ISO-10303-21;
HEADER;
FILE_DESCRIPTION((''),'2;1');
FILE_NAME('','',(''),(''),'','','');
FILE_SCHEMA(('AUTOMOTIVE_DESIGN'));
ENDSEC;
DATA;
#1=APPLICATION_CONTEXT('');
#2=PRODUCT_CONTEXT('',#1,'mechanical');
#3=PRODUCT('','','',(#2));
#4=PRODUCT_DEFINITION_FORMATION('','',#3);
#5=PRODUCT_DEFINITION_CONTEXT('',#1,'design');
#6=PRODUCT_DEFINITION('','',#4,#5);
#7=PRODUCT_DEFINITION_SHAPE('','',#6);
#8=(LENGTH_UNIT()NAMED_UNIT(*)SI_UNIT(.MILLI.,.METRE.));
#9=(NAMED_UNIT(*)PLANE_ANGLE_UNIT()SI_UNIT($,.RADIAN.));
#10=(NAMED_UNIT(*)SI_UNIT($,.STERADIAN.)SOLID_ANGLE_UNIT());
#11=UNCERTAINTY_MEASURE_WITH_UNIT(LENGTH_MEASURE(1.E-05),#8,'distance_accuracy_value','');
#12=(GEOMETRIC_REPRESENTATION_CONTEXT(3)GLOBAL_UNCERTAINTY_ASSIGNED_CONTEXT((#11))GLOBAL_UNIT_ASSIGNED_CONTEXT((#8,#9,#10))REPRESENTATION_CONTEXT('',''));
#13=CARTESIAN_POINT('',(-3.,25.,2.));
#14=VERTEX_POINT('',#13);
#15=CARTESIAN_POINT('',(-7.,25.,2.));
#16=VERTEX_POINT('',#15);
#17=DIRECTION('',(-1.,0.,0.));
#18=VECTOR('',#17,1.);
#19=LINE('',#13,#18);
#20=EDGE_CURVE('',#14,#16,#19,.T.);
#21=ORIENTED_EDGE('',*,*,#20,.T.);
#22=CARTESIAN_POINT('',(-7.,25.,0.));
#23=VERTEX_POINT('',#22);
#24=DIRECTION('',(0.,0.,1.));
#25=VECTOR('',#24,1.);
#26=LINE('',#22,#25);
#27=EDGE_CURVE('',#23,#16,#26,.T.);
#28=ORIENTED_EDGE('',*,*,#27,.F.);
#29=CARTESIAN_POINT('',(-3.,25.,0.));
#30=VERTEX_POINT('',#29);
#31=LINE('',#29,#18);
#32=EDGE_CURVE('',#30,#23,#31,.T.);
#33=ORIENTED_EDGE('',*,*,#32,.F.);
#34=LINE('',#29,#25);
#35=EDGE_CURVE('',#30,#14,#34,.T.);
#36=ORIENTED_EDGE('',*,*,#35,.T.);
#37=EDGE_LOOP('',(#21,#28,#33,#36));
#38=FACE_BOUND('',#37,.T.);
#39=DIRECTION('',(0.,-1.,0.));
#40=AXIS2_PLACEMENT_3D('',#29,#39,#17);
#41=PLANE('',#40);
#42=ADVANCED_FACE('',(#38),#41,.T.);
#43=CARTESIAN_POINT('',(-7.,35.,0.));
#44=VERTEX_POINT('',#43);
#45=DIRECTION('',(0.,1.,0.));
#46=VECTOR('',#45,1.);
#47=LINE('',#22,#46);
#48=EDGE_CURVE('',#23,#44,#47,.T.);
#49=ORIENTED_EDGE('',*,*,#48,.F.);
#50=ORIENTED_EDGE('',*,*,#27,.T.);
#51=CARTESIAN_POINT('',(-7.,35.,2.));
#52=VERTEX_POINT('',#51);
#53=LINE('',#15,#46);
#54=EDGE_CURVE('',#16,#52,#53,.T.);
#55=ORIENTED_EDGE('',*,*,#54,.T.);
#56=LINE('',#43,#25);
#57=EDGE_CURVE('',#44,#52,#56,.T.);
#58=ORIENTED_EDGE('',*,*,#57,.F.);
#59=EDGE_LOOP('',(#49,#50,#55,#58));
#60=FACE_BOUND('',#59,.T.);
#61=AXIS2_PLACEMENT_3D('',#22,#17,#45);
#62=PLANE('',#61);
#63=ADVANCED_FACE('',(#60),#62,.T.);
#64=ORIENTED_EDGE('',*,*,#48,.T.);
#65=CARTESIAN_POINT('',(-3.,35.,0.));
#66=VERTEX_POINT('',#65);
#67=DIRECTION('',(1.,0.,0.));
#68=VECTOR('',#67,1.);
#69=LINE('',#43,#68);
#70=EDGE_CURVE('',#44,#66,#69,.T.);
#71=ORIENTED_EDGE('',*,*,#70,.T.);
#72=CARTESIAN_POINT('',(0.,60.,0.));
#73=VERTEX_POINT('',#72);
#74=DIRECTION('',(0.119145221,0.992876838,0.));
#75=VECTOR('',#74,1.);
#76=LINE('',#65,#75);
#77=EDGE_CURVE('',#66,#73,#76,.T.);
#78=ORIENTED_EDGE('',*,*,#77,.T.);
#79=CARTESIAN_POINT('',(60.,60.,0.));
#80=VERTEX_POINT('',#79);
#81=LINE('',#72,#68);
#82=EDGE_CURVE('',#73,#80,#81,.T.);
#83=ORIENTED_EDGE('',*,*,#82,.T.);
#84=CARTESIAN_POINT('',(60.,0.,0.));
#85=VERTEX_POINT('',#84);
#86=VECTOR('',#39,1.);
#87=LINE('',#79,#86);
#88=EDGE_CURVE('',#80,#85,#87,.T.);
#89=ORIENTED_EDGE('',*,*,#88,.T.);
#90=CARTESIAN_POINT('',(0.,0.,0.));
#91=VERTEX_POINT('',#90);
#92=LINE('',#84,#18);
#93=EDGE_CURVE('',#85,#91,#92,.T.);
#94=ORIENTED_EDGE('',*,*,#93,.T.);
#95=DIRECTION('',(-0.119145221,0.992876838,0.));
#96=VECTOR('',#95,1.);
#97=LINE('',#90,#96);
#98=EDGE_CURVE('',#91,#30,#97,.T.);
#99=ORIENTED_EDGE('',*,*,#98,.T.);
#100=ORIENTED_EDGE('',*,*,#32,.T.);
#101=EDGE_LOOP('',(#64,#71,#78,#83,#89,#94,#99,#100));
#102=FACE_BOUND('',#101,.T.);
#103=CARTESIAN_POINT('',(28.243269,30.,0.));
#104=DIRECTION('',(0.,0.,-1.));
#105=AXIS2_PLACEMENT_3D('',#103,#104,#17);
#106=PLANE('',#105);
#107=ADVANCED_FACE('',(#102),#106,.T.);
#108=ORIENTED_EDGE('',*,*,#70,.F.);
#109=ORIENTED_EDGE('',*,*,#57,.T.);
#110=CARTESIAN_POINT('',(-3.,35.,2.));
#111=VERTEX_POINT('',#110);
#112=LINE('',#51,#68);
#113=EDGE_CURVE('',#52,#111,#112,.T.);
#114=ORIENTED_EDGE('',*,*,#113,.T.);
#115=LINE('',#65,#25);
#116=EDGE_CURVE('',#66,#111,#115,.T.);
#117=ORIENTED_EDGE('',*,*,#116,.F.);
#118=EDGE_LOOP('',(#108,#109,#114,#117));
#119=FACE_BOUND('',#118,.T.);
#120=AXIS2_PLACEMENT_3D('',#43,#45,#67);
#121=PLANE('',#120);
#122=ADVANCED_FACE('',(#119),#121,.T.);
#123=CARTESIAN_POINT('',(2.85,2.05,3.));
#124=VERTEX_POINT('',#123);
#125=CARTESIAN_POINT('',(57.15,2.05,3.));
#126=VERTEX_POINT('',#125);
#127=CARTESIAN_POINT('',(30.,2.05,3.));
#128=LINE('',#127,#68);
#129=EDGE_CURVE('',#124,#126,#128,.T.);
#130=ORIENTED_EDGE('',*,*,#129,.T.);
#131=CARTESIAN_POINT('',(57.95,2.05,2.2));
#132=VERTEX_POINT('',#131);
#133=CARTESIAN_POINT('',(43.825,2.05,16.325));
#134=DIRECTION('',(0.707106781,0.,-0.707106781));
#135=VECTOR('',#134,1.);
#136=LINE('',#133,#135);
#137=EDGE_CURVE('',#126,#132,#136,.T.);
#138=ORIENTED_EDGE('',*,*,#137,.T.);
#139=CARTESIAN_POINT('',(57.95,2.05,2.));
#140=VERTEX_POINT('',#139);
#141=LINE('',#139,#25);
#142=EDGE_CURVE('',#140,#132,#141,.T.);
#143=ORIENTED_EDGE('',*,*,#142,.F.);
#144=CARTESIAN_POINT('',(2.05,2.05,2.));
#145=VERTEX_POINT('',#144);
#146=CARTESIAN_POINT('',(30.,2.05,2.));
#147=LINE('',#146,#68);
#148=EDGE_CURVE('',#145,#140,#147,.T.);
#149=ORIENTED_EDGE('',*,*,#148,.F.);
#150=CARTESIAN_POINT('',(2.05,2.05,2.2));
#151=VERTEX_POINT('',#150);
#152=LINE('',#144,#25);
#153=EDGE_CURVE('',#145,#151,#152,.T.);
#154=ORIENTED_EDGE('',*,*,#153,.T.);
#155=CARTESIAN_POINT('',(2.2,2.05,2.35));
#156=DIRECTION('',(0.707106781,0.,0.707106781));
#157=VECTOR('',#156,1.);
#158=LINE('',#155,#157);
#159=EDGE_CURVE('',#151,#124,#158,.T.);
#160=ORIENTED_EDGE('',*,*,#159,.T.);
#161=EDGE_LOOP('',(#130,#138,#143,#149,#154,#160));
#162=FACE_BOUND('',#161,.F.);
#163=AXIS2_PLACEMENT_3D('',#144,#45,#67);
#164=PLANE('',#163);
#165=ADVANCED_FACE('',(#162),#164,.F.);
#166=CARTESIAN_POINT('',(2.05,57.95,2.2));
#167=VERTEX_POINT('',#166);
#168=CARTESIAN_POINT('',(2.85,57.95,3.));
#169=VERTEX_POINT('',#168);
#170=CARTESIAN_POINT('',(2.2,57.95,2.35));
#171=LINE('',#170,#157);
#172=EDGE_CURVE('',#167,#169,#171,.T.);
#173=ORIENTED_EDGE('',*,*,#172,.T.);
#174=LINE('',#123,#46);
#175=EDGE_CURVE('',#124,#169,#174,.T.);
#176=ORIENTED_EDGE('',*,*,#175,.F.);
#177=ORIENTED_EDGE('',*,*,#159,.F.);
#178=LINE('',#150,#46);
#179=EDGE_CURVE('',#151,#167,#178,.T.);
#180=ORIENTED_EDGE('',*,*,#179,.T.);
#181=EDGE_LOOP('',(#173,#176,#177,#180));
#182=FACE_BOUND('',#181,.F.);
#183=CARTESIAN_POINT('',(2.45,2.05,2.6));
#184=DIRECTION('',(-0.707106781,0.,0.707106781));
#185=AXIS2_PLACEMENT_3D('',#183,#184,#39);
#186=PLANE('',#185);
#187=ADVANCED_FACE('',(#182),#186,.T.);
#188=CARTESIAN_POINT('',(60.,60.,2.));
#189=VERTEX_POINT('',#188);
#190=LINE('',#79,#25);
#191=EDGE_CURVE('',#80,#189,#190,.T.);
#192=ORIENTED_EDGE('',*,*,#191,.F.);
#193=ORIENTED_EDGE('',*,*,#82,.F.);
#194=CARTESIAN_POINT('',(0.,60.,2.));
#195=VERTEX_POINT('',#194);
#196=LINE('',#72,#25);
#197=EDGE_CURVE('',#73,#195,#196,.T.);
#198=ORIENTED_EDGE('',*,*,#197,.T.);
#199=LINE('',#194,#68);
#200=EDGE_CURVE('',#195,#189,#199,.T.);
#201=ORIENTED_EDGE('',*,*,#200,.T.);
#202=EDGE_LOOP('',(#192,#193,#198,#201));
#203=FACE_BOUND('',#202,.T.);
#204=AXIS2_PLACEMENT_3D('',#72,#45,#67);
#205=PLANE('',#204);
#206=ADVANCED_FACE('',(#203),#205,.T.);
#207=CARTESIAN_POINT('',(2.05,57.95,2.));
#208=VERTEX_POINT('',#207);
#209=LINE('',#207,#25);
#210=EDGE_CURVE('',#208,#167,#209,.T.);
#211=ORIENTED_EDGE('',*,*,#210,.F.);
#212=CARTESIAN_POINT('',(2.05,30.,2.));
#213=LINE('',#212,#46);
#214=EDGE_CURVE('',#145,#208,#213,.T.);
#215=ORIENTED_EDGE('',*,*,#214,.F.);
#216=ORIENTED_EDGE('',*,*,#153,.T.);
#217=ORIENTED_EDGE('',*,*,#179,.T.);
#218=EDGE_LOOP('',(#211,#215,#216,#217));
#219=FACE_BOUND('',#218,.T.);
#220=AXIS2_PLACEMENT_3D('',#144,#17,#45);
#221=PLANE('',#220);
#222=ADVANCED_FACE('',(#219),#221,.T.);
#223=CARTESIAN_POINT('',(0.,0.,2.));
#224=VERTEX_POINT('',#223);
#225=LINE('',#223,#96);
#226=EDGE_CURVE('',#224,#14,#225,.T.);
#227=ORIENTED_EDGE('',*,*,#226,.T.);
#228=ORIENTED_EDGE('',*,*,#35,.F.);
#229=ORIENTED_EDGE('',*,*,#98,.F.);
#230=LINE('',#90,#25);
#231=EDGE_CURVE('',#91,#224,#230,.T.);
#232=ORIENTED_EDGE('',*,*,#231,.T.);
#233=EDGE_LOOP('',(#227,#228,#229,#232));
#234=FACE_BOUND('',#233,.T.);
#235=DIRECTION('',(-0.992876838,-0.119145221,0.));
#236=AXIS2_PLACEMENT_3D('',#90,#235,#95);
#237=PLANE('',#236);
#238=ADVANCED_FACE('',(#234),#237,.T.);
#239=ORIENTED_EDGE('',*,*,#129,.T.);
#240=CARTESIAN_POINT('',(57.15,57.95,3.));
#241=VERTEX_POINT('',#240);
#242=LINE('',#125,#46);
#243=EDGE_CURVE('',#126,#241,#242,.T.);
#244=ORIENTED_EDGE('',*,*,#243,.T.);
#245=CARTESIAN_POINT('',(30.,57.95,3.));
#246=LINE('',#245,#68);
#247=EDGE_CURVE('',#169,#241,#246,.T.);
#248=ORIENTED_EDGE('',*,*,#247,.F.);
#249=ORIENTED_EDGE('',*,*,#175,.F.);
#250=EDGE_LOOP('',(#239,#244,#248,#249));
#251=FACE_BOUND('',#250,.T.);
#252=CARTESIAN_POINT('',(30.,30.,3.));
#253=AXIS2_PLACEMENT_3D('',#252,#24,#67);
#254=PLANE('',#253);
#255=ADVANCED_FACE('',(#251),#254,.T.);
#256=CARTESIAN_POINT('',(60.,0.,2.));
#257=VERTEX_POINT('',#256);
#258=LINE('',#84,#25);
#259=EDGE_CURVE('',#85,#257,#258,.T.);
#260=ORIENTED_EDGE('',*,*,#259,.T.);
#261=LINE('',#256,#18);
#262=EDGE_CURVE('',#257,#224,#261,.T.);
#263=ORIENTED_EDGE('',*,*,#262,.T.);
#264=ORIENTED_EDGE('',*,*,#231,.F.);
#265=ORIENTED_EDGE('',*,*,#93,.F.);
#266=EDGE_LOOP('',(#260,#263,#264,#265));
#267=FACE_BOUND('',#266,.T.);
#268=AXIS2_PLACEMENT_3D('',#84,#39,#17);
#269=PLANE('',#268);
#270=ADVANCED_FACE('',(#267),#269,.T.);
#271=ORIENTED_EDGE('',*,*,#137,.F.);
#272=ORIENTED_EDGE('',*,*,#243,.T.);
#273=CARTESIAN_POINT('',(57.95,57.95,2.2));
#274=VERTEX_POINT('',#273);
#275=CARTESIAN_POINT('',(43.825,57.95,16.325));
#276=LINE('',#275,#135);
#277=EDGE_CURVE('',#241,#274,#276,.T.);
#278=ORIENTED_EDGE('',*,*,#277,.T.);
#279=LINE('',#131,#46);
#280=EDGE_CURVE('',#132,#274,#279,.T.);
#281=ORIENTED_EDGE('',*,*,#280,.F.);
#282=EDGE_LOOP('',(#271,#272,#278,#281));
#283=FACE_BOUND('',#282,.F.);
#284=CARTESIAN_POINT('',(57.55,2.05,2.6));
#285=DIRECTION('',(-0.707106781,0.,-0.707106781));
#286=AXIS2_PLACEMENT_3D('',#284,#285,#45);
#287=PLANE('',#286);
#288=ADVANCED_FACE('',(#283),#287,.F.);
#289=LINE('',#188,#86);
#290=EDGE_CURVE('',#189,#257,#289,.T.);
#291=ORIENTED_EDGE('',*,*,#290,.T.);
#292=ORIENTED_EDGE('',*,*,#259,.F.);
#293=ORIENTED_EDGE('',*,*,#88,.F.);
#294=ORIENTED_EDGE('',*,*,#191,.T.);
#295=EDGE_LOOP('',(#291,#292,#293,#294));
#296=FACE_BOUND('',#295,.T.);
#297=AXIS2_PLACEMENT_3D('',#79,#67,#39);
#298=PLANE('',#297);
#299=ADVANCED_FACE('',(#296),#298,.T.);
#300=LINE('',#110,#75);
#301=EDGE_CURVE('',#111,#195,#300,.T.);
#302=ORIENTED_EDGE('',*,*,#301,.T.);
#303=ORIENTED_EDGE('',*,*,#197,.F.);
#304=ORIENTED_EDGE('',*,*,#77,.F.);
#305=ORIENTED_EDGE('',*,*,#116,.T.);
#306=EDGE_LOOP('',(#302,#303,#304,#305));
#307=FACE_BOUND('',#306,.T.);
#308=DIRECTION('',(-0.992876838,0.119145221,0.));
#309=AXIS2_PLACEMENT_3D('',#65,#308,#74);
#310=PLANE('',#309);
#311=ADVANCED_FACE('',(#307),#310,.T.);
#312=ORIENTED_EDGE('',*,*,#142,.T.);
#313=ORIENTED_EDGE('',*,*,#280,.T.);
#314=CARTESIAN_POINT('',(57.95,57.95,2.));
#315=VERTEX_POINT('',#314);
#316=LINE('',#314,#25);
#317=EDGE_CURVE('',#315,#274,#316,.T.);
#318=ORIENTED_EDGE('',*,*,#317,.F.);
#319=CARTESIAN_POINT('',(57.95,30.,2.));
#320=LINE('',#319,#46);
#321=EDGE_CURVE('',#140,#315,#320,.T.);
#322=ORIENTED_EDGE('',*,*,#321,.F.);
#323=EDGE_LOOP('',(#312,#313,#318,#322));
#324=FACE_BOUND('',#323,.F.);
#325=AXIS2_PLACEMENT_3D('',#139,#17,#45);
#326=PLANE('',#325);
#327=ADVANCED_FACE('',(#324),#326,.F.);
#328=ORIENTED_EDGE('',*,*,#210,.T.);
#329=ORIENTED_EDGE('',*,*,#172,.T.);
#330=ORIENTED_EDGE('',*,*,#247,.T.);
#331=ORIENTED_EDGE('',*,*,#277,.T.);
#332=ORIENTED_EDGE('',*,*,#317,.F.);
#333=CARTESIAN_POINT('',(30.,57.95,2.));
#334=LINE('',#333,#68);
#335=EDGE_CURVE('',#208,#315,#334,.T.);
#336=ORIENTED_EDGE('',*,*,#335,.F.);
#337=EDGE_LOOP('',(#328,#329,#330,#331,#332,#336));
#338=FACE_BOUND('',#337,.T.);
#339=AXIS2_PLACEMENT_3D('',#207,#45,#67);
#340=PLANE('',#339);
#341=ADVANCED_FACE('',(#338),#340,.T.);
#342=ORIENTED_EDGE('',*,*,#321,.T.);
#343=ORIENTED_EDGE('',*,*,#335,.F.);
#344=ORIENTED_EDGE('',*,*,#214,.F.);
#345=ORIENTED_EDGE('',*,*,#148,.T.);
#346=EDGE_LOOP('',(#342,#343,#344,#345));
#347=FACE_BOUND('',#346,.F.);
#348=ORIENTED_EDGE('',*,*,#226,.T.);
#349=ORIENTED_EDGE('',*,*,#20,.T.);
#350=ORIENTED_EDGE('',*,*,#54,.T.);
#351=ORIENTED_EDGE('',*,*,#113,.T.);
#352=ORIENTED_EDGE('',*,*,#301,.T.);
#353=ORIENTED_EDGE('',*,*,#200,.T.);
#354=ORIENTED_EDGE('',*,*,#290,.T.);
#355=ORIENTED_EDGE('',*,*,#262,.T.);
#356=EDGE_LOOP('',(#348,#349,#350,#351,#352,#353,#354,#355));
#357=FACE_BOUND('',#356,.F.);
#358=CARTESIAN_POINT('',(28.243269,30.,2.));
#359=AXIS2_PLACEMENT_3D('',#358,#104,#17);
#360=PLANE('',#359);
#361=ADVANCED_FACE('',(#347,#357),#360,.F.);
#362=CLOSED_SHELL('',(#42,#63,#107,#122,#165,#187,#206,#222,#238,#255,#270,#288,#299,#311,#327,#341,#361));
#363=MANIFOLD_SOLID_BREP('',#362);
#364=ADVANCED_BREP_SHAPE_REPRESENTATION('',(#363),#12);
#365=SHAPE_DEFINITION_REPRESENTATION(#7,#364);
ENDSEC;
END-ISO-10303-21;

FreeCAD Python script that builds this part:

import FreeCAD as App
import Part
import Sketcher
Q = App.Units.Quantity


def edges_at(feature, points):
    """Names of the edges that pass closest to the given points."""
    edges = feature.Shape.Edges
    near = lambda p: min(range(len(edges)), key=lambda i: edges[i].distToShape(Part.Vertex(*p))[0])
    return sorted({f"Edge{near(p) + 1}" for p in points})

doc = App.newDocument("Part")
params = doc.addObject("Spreadsheet::Sheet", "Params")
for row, (alias, value) in enumerate([
    ("sketch1_width", "60 mm"),
    ("sketch1_width2", "4 mm"),
    ("sketch1_height", "10 mm"),
    ("pad1_length", "2 mm"),
    ("sketch2_width", "55.9 mm"),
    ("pad2_length", "1 mm"),
    ("chamfer_size", "0.8 mm"),
    ("chamfer_size2", "0.8 mm"),
    ("chamfer2_size", "0.8 mm"),
    ("chamfer2_size2", "0.8 mm"),
], start=1):
    params.set(f"A{row}", alias)
    params.set(f"B{row}", "=" + value)
    params.setAlias(f"B{row}", alias)

body = doc.addObject("PartDesign::Body", "Body")

# Sketch on XY plane
sketch1 = doc.addObject("Sketcher::SketchObject", "Sketch")
body.addObject(sketch1)
sketch1.AttachmentSupport = (doc.XY_Plane, [""])
sketch1.MapMode = "FlatFace"
sketch1.addGeometry([
    Part.LineSegment(App.Vector(60, 60, 0), App.Vector(0, 60, 0)),  # 0
    Part.LineSegment(App.Vector(0, 60, 0), App.Vector(-3, 35, 0)),  # 1
    Part.LineSegment(App.Vector(-3, 35, 0), App.Vector(-7, 35, 0)),  # 2
    Part.LineSegment(App.Vector(-7, 35, 0), App.Vector(-7, 25, 0)),  # 3
    Part.LineSegment(App.Vector(-7, 25, 0), App.Vector(-3, 25, 0)),  # 4
    Part.LineSegment(App.Vector(-3, 25, 0), App.Vector(0, 0, 0)),  # 5
    Part.LineSegment(App.Vector(0, 0, 0), App.Vector(60, 0, 0)),  # 6
    Part.LineSegment(App.Vector(60, 0, 0), App.Vector(60, 60, 0)),  # 7
], False)
sketch1.addConstraint([
    Sketcher.Constraint("Coincident", 0, 2, 1, 1),
    Sketcher.Constraint("Coincident", 1, 2, 2, 1),
    Sketcher.Constraint("Coincident", 2, 2, 3, 1),
    Sketcher.Constraint("Coincident", 3, 2, 4, 1),
    Sketcher.Constraint("Coincident", 4, 2, 5, 1),
    Sketcher.Constraint("Coincident", 5, 2, 6, 1),
    Sketcher.Constraint("Coincident", 6, 2, 7, 1),
    Sketcher.Constraint("Coincident", 7, 2, 0, 1),
    Sketcher.Constraint("Horizontal", 0),
    Sketcher.Constraint("Horizontal", 2),
    Sketcher.Constraint("Vertical", 3),
    Sketcher.Constraint("Horizontal", 4),
    Sketcher.Constraint("Horizontal", 6),
    Sketcher.Constraint("Vertical", 7),
    Sketcher.Constraint("Coincident", 5, 2, -1, 1),
    Sketcher.Constraint("PointOnObject", 0, 2, -2),
    Sketcher.Constraint("Vertical", 1, 2, 4, 2),
    Sketcher.Constraint("Equal", 6, 7),
    Sketcher.Constraint("Equal", 1, 5),
    Sketcher.Constraint("DistanceX", 0, 2, 0, 1, Q("60 mm")),
    Sketcher.Constraint("DistanceX", 2, 2, 2, 1, Q("4 mm")),
    Sketcher.Constraint("DistanceY", 3, 2, 3, 1, Q("10 mm")),
    Sketcher.Constraint("DistanceX", 1, 2, -1, 1, Q("3 mm")),
])
sketch1.setExpression("Constraints[19]", "Params.sketch1_width")
sketch1.setExpression("Constraints[20]", "Params.sketch1_width2")
sketch1.setExpression("Constraints[21]", "Params.sketch1_height")
pad1 = doc.addObject("PartDesign::Pad", "Pad")
body.addObject(pad1)
pad1.Profile = sketch1
pad1.setExpression("Length", "Params.pad1_length")

# Sketch on XY plane
sketch2 = doc.addObject("Sketcher::SketchObject", "Sketch001")
body.addObject(sketch2)
sketch2.AttachmentSupport = (doc.XY_Plane, [""])
sketch2.MapMode = "FlatFace"
sketch2.AttachmentOffset = App.Placement(App.Vector(0, 0, 2), App.Rotation())
sketch2.addGeometry([
    Part.LineSegment(App.Vector(2, 58, 0), App.Vector(2, 2, 0)),
    Part.LineSegment(App.Vector(2, 2, 0), App.Vector(58, 2, 0)),
    Part.LineSegment(App.Vector(58, 2, 0), App.Vector(58, 58, 0)),
    Part.LineSegment(App.Vector(58, 58, 0), App.Vector(2, 58, 0)),
], False)
sketch2.addConstraint([
    Sketcher.Constraint("Coincident", 0, 2, 1, 1),
    Sketcher.Constraint("Coincident", 1, 2, 2, 1),
    Sketcher.Constraint("Coincident", 2, 2, 3, 1),
    Sketcher.Constraint("Coincident", 3, 2, 0, 1),
    Sketcher.Constraint("Vertical", 0),
    Sketcher.Constraint("Horizontal", 1),
    Sketcher.Constraint("Vertical", 2),
    Sketcher.Constraint("Horizontal", 3),
    Sketcher.Constraint("Equal", 3, 0),
    Sketcher.Constraint("DistanceX", 1, 1, 1, 2, Q("55.9 mm")),
    Sketcher.Constraint("DistanceX", -1, 1, 0, 2, Q("2.05 mm")),
    Sketcher.Constraint("DistanceY", -1, 1, 0, 2, Q("2.05 mm")),
])
sketch2.setExpression("Constraints[9]", "Params.sketch2_width")
pad2 = doc.addObject("PartDesign::Pad", "Pad001")
body.addObject(pad2)
pad2.Profile = sketch2
pad2.setExpression("Length", "Params.pad2_length")
doc.recompute()

chamfer = doc.addObject("PartDesign::Chamfer", "Chamfer")
body.addObject(chamfer)
chamfer.Base = (pad2, edges_at(pad2, [(2.05, 30, 3)]))
chamfer.ChamferType = "Two distances"
chamfer.setExpression("Size", "Params.chamfer_size")
chamfer.setExpression("Size2", "Params.chamfer_size2")
doc.recompute()

chamfer2 = doc.addObject("PartDesign::Chamfer", "Chamfer001")
body.addObject(chamfer2)
chamfer2.Base = (chamfer, edges_at(chamfer, [(57.95, 30, 3)]))
chamfer2.ChamferType = "Two distances"
chamfer2.setExpression("Size", "Params.chamfer2_size")
chamfer2.setExpression("Size2", "Params.chamfer2_size2")

doc.recompute()
